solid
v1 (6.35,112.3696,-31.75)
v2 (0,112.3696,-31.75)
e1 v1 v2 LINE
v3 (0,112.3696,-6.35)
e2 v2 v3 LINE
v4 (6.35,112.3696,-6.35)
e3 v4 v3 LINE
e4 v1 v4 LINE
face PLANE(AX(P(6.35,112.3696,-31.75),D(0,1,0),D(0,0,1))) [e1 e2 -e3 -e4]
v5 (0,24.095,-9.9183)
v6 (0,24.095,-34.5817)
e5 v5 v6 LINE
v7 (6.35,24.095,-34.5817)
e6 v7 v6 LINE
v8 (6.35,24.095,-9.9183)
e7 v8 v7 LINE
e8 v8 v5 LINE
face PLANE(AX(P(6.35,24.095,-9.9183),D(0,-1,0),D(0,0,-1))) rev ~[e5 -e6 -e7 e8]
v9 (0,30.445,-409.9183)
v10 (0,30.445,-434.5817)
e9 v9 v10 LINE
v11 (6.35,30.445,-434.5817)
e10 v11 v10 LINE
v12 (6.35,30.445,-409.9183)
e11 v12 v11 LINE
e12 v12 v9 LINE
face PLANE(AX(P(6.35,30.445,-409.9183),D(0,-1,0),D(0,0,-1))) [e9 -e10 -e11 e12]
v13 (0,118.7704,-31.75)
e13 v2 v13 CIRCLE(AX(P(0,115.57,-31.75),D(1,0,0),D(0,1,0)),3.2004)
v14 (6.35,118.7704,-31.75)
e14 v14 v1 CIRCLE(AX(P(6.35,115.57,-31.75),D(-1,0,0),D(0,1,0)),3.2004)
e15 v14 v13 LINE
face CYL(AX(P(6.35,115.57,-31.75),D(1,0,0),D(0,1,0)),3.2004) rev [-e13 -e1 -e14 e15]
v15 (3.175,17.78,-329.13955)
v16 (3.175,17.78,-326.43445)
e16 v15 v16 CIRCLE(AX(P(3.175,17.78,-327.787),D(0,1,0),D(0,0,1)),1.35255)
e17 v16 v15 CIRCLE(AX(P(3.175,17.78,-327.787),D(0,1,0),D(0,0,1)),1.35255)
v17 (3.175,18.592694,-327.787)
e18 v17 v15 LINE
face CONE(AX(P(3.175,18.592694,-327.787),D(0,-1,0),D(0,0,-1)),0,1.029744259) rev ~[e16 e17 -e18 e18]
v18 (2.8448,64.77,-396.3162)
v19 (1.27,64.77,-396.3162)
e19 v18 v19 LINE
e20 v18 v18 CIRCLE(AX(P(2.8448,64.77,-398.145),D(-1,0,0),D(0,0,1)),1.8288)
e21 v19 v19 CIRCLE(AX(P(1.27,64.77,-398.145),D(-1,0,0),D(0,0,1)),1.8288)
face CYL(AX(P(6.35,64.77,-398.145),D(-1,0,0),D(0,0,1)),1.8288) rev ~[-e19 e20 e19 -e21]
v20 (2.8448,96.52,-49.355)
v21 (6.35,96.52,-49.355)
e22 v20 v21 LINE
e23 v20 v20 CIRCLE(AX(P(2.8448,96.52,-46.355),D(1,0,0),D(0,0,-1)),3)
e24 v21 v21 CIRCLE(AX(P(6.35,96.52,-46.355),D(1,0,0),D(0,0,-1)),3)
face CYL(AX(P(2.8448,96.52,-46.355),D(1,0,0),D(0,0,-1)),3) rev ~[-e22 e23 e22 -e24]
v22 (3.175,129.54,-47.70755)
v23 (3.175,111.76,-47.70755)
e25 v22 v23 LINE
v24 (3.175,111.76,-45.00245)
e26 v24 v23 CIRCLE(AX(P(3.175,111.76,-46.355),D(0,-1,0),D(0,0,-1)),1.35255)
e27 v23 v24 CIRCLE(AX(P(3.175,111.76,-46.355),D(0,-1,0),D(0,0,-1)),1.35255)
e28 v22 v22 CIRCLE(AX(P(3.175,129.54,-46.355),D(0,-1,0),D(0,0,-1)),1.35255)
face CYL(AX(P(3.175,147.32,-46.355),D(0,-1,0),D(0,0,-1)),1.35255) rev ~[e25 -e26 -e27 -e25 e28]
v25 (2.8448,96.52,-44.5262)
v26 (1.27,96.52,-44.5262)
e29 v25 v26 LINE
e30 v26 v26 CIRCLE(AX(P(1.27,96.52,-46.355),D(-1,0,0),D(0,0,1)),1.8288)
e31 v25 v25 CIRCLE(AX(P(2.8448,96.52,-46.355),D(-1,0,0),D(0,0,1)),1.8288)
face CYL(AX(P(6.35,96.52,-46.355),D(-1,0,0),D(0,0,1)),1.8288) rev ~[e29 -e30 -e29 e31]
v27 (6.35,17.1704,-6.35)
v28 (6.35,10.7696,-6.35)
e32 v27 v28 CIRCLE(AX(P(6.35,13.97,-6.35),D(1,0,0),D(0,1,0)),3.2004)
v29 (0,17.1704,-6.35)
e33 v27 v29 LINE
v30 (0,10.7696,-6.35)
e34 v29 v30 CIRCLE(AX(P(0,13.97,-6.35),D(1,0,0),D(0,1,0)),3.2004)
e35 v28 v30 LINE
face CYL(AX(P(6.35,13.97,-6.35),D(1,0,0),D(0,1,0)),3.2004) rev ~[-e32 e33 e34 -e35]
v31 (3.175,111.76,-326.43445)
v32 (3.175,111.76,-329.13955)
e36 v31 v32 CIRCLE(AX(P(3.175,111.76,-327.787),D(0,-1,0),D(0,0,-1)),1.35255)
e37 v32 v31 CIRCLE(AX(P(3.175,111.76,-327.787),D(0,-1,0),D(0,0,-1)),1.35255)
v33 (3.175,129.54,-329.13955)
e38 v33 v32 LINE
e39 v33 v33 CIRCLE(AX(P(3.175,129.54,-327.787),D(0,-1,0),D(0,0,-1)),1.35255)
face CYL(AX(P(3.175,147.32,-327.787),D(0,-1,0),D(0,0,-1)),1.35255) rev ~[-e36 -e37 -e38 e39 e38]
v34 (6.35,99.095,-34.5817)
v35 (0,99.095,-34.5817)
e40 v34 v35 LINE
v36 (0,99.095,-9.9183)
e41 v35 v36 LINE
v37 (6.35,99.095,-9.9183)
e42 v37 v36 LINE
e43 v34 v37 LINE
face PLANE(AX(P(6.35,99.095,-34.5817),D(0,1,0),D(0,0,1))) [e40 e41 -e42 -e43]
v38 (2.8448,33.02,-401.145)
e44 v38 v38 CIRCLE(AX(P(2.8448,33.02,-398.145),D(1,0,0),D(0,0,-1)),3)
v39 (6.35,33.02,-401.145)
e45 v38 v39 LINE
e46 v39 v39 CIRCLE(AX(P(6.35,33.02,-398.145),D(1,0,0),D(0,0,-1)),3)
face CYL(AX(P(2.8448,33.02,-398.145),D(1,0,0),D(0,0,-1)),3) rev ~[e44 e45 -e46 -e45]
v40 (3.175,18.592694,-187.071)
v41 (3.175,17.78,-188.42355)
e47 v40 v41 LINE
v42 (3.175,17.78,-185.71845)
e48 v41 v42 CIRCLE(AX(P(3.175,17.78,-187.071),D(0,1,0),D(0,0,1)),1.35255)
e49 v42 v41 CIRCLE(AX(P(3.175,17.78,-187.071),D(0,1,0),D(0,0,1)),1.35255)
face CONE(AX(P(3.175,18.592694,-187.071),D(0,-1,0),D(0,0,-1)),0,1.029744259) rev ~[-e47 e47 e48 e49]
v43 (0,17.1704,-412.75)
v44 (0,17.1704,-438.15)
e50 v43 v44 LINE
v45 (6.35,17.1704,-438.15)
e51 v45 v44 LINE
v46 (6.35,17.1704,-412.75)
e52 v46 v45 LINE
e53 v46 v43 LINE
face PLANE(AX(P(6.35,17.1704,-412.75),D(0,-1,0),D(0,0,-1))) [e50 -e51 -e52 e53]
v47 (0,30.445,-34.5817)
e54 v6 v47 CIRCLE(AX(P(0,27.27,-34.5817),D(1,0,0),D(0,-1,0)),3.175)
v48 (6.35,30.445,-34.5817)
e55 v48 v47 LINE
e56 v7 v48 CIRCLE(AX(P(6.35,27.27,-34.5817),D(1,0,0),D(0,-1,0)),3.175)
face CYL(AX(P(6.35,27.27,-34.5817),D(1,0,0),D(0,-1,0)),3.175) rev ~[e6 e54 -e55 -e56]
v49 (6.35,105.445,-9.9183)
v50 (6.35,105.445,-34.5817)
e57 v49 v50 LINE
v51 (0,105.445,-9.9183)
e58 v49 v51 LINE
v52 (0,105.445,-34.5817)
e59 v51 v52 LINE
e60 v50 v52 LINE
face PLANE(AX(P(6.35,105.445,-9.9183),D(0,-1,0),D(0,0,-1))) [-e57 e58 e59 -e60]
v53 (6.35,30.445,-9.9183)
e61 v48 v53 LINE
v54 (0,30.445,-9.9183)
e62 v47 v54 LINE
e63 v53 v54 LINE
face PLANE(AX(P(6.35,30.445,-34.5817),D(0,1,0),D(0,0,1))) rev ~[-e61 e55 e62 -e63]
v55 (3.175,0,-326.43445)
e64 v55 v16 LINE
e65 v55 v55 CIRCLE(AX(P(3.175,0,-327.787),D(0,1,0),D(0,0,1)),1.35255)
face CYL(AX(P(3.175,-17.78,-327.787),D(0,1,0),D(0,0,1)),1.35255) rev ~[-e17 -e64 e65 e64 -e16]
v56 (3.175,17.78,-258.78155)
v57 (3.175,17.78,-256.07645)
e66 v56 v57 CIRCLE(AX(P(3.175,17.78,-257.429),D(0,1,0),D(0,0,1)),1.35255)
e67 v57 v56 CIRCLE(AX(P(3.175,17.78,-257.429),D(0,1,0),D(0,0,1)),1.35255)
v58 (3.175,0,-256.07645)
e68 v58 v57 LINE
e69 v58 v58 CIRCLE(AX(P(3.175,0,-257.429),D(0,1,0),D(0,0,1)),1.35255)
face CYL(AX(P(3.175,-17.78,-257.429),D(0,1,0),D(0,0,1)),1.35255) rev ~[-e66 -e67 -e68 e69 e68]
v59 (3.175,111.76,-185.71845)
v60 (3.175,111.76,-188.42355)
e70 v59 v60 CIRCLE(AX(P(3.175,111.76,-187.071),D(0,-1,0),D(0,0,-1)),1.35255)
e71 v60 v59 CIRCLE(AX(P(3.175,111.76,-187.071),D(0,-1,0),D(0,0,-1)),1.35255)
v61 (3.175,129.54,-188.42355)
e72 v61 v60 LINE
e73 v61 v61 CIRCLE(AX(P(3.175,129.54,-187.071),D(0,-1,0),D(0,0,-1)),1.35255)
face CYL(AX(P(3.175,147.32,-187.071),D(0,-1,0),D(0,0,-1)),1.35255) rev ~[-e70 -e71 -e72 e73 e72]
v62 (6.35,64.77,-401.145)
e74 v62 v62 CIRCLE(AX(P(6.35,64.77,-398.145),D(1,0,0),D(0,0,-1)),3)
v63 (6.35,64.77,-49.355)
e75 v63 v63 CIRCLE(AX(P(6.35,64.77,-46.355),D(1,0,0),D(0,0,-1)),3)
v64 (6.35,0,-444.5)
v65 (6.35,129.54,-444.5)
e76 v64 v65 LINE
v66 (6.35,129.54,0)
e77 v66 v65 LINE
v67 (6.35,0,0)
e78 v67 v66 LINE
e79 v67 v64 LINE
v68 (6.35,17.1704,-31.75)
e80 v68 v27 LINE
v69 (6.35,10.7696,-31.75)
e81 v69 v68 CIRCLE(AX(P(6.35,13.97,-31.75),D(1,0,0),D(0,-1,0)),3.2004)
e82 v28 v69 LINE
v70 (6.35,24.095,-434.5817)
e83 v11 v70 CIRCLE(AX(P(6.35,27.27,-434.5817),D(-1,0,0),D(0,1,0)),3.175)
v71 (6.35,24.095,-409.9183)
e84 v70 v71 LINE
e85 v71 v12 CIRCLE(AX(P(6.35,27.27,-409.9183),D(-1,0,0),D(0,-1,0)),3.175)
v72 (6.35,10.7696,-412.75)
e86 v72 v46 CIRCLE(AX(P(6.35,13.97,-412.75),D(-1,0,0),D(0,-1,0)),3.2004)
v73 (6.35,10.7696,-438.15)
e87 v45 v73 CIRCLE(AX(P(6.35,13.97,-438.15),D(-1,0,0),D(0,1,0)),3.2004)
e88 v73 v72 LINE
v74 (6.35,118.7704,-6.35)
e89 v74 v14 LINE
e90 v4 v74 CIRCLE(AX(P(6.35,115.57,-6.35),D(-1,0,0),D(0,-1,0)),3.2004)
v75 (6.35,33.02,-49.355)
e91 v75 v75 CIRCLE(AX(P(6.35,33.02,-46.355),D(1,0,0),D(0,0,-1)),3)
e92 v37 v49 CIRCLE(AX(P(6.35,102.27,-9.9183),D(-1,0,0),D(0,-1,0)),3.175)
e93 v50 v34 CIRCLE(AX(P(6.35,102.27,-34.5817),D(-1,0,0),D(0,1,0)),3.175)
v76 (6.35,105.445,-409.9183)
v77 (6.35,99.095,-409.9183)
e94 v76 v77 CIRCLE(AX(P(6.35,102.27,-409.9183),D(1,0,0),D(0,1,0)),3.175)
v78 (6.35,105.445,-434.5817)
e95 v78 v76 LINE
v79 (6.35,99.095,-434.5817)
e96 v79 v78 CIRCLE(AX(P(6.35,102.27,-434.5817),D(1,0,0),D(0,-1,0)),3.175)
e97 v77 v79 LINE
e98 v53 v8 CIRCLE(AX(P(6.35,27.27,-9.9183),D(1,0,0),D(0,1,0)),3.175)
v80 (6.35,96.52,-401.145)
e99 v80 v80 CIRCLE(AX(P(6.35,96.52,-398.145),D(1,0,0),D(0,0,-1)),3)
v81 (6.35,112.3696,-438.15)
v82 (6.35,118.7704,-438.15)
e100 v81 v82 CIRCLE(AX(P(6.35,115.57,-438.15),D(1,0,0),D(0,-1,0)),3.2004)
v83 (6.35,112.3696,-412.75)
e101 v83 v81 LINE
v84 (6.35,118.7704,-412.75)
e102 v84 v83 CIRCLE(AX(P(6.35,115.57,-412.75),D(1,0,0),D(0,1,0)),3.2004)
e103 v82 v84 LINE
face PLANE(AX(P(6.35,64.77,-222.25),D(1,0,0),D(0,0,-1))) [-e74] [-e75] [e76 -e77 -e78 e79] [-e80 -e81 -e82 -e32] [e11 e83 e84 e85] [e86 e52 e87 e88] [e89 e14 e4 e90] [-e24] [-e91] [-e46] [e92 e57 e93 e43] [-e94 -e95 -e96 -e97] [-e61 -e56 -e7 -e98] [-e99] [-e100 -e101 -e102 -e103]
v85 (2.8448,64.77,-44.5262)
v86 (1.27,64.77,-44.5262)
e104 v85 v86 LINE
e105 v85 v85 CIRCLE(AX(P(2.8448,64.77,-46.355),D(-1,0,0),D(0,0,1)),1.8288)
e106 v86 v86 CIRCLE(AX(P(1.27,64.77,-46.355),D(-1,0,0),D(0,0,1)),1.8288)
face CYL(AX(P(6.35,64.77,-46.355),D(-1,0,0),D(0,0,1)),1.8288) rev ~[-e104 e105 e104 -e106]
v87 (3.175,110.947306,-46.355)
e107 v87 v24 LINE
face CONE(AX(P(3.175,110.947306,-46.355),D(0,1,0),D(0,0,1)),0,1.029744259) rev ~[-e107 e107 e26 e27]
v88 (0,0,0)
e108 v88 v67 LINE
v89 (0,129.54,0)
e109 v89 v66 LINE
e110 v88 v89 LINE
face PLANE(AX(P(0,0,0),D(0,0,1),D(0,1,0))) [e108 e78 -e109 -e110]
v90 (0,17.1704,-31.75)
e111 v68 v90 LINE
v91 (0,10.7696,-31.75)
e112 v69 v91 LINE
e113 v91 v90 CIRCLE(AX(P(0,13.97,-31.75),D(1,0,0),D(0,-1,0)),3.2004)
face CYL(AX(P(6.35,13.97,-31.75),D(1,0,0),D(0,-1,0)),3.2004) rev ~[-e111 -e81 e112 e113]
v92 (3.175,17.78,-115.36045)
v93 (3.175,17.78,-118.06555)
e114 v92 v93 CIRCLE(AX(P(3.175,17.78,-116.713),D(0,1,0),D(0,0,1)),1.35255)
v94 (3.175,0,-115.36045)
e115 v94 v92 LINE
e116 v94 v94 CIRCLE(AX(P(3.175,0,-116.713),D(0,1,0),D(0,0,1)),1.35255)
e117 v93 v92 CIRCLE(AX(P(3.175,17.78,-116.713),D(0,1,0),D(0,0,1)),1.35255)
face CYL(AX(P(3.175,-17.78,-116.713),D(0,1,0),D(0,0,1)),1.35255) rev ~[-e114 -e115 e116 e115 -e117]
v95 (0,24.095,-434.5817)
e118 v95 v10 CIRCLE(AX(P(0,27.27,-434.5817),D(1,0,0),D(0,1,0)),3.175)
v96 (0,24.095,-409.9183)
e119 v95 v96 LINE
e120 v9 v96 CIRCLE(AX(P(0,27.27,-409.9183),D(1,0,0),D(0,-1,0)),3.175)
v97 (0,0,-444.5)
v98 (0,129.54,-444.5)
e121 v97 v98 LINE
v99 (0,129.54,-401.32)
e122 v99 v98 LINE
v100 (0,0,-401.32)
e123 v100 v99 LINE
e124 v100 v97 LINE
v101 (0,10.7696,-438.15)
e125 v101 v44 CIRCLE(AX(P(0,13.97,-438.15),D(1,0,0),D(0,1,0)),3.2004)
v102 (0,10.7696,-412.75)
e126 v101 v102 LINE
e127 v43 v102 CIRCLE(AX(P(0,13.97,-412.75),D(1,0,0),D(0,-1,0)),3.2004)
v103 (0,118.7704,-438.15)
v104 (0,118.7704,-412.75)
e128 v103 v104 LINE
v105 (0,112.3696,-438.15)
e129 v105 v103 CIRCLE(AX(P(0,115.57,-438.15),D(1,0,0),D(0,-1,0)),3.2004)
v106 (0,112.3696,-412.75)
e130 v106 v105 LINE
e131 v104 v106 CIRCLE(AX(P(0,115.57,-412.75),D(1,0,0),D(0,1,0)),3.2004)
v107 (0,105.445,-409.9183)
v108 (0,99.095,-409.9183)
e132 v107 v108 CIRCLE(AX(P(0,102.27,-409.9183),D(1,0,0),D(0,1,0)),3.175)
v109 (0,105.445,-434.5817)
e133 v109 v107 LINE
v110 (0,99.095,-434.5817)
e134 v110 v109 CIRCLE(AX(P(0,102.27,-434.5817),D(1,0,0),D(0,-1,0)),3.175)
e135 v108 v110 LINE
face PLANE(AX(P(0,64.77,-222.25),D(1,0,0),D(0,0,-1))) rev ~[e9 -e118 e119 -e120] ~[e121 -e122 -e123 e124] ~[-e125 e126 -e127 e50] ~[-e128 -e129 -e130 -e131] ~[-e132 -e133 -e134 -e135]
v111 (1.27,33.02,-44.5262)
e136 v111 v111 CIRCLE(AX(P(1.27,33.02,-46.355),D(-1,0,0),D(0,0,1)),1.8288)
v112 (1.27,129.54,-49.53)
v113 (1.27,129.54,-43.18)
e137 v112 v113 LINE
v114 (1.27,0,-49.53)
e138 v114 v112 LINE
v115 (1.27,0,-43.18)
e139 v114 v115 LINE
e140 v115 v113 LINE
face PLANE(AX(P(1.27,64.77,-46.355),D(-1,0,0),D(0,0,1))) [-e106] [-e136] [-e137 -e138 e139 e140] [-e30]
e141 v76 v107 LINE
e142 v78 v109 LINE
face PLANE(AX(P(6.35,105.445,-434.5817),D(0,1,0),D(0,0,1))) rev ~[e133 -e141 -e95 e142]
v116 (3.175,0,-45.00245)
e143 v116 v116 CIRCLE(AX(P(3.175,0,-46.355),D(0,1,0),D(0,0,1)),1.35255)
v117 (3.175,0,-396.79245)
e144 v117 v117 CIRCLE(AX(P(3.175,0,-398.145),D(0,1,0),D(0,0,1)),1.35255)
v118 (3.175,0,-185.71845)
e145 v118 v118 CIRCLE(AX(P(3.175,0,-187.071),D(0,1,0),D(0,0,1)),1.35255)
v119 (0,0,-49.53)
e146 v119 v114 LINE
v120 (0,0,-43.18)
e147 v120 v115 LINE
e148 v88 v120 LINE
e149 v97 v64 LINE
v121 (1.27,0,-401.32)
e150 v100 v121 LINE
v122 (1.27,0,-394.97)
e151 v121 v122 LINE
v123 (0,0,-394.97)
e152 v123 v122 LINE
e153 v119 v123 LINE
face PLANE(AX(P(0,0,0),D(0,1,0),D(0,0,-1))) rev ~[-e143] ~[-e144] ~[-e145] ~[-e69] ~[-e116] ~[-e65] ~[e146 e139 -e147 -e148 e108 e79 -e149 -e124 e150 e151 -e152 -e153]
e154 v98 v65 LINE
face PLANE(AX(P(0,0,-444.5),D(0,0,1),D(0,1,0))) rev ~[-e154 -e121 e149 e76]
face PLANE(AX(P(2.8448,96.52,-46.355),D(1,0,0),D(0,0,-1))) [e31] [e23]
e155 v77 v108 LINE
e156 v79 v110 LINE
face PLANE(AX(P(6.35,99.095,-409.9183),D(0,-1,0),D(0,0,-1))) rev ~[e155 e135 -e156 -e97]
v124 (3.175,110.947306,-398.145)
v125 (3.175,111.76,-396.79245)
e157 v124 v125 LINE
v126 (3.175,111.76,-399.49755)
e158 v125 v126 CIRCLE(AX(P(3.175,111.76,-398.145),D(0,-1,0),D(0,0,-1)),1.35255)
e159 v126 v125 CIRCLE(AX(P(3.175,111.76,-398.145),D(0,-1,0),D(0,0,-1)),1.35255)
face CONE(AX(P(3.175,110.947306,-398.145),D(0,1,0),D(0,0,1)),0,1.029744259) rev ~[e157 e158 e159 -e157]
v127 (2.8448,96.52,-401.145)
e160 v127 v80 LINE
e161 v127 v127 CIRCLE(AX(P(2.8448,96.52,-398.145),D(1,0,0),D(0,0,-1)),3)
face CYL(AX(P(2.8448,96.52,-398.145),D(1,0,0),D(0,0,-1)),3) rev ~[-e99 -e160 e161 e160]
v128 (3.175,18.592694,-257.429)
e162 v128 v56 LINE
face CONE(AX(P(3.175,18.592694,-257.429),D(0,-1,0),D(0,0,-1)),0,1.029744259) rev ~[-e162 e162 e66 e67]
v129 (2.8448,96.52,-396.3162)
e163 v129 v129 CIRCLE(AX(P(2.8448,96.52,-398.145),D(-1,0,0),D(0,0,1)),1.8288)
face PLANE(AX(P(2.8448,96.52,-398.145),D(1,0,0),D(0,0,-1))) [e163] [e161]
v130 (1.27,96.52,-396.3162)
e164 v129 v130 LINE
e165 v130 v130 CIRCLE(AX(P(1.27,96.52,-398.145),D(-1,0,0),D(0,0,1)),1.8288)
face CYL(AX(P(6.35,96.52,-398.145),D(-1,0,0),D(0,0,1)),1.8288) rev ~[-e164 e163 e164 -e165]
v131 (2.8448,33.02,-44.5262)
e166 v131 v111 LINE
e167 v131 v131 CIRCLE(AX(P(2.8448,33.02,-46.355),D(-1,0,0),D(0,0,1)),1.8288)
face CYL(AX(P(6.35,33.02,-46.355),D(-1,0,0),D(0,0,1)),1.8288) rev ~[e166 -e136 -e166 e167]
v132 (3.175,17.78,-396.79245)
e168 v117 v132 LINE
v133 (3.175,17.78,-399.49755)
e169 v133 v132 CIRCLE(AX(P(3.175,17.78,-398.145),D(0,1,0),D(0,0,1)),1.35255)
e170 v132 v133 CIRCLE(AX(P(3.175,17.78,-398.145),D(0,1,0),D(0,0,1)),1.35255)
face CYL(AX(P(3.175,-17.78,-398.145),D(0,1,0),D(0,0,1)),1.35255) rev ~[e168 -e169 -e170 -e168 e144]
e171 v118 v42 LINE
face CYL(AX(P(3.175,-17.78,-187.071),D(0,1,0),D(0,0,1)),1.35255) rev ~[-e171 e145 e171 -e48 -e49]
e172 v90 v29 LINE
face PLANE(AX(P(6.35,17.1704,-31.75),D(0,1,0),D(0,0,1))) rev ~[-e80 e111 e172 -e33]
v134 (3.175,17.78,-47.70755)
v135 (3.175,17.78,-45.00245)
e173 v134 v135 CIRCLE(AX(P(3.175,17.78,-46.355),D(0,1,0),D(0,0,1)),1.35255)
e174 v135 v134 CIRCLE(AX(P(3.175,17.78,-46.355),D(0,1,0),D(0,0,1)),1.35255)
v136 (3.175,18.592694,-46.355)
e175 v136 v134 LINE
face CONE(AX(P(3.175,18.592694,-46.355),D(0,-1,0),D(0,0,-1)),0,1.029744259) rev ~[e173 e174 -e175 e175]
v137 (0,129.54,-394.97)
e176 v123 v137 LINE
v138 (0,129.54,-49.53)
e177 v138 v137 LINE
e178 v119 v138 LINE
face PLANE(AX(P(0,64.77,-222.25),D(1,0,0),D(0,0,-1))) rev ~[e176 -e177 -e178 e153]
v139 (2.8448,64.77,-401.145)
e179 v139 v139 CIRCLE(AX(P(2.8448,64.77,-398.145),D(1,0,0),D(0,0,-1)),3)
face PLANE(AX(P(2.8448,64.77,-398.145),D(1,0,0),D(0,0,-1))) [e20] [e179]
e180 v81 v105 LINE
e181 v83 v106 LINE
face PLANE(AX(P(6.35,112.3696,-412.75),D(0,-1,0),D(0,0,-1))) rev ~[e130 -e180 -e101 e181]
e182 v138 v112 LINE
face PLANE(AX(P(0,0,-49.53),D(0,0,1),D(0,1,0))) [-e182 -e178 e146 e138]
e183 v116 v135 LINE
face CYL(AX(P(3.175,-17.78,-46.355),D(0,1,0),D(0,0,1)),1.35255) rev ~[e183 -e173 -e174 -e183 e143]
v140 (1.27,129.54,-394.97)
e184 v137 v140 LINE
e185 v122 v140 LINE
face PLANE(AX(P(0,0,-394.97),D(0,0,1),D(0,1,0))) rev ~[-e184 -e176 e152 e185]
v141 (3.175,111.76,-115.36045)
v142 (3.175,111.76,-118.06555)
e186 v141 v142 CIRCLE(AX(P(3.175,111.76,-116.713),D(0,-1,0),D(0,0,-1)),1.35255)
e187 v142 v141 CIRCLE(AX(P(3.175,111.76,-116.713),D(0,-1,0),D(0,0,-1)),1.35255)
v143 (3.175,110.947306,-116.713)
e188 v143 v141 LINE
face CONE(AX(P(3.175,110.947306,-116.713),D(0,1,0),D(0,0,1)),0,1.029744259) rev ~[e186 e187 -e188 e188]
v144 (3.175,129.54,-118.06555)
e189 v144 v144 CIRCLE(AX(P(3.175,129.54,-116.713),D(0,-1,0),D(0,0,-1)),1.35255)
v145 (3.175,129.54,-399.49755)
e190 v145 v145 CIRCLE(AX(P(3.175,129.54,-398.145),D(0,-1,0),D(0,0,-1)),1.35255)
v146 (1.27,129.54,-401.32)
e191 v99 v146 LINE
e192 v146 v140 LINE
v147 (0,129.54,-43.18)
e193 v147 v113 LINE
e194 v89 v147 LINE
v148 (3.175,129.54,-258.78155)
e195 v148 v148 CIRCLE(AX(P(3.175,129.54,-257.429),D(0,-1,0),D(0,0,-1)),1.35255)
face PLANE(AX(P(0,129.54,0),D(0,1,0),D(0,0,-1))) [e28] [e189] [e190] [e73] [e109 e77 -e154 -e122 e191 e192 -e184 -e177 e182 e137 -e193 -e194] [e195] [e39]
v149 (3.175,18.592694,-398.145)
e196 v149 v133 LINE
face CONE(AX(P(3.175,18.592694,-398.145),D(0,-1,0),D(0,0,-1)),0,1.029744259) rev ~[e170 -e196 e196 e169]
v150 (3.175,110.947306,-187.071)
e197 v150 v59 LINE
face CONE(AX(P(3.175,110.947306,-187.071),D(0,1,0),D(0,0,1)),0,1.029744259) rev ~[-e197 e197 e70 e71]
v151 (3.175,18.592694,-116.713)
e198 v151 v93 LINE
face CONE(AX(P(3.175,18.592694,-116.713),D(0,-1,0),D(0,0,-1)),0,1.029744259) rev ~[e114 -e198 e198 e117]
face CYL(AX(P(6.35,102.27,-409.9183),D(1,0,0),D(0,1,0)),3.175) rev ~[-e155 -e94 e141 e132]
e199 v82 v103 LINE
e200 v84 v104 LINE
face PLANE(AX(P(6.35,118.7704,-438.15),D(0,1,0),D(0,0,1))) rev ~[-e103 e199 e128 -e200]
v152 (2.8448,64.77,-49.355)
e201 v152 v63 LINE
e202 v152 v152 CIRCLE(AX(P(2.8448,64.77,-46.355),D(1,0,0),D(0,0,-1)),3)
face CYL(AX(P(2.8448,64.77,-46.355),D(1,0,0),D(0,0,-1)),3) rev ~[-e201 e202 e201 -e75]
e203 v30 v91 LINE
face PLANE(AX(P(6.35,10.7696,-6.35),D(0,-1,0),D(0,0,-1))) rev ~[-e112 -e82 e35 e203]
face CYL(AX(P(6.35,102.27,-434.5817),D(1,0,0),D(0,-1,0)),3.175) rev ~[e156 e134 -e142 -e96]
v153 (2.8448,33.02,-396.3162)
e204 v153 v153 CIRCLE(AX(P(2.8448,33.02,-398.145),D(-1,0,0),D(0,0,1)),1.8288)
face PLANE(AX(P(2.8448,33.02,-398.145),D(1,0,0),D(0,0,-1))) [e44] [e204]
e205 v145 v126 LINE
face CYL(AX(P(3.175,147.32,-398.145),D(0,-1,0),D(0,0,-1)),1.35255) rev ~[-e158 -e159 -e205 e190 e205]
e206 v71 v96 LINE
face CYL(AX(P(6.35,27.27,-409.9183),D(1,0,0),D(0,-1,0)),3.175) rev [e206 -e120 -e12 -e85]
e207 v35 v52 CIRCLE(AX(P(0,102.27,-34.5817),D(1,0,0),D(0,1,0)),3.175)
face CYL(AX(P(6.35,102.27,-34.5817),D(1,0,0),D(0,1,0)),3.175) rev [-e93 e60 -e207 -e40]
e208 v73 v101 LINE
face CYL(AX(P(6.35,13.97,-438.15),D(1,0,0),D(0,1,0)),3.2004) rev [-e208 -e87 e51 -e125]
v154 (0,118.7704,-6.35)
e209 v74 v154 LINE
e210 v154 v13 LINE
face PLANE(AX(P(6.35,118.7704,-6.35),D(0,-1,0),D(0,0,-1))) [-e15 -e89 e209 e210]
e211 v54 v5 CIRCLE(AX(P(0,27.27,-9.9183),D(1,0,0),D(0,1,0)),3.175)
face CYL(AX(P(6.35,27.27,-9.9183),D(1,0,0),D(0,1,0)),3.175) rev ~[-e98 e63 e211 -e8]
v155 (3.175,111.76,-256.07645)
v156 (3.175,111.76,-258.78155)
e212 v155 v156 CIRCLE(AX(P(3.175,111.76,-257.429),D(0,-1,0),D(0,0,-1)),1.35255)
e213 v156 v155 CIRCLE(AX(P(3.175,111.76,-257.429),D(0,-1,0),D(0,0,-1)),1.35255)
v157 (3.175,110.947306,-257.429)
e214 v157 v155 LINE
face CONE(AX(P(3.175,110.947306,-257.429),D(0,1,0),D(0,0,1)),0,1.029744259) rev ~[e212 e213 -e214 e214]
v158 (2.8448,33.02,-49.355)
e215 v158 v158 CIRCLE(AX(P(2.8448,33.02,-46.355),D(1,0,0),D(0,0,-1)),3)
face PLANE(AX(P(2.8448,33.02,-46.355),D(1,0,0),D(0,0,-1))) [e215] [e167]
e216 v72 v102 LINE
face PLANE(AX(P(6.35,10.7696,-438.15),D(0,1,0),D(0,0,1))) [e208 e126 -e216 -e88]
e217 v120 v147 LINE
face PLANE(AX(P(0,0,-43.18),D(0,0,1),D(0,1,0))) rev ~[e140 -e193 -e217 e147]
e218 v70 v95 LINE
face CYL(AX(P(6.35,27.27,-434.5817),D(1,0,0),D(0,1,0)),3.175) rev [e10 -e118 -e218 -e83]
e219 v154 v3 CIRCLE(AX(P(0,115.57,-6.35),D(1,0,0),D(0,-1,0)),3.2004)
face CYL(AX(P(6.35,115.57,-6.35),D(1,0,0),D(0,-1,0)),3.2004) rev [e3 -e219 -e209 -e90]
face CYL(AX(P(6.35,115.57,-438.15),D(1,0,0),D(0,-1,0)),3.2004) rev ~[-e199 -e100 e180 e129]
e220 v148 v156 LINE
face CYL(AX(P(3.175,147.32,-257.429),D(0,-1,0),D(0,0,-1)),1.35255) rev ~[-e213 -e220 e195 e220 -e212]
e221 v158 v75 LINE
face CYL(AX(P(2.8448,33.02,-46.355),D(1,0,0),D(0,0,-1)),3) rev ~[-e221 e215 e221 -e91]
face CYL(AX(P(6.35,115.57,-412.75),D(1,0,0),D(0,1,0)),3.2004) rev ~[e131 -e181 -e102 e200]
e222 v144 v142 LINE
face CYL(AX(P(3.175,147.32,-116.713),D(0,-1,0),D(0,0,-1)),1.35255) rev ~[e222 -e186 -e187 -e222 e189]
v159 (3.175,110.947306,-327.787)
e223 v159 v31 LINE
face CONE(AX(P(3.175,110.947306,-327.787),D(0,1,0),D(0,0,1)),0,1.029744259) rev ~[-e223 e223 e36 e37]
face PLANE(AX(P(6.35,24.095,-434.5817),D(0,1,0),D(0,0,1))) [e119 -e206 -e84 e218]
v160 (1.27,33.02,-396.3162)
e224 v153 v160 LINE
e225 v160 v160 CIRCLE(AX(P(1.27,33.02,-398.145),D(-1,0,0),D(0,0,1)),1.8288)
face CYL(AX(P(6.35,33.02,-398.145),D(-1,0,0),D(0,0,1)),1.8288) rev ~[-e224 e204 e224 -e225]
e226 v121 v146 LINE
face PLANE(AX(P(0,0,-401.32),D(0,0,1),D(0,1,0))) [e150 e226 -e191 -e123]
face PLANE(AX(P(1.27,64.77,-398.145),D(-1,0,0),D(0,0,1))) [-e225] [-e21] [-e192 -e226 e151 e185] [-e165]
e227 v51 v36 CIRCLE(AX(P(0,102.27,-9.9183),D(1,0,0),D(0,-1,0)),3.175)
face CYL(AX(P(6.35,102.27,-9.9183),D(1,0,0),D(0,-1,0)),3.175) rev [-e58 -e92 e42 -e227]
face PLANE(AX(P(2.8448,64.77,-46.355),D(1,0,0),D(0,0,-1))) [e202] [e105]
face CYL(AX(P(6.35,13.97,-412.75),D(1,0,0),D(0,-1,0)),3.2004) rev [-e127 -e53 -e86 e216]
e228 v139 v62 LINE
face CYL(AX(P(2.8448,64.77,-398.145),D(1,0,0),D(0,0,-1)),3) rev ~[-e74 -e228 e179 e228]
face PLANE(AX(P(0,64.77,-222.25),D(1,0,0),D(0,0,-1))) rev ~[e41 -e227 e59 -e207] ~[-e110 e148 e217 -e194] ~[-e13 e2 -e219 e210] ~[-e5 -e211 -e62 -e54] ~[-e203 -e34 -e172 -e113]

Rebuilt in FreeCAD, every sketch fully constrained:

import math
import FreeCAD as App
import Part
import Sketcher
Q = App.Units.Quantity


def add_polygon(sketch, points):
    """Adds a closed chain of lines whose ends are joined by coincident constraints."""
    first, n = sketch.GeometryCount, len(points)
    for a, b in zip(points, points[1:] + points[:1]):
        sketch.addGeometry(Part.LineSegment(App.Vector(*a, 0), App.Vector(*b, 0)), False)
    for i in range(n):
        sketch.addConstraint(Sketcher.Constraint("Coincident", first + i, 2, first + (i + 1) % n, 1))

doc = App.newDocument("Part")
body = doc.addObject("PartDesign::Body", "Body")

# Sketch on YZ plane
sketch1 = doc.addObject("Sketcher::SketchObject", "Sketch")
body.addObject(sketch1)
sketch1.AttachmentSupport = (doc.YZ_Plane, [""])
sketch1.MapMode = "FlatFace"
add_polygon(sketch1, [(130, 0), (0, 0), (0, -444), (130, -444)])  # lines 0-3
sketch1.addConstraint([
    Sketcher.Constraint("Horizontal", 0),
    Sketcher.Constraint("Vertical", 1),
    Sketcher.Constraint("Horizontal", 2),
    Sketcher.Constraint("Vertical", 3),
    Sketcher.Constraint("Coincident", 0, 2, -1, 1),
    Sketcher.Constraint("DistanceX", 0, 2, 0, 1, Q("5.1 in")),
    Sketcher.Constraint("DistanceY", 1, 2, 1, 1, Q("17.5 in")),
])
pad1 = doc.addObject("PartDesign::Pad", "Pad")
body.addObject(pad1)
pad1.Profile = sketch1
pad1.Length = Q("0.25 in")

# Sketch on YZ plane
sketch2 = doc.addObject("Sketcher::SketchObject", "Sketch001")
body.addObject(sketch2)
sketch2.AttachmentSupport = (doc.YZ_Plane, [""])
sketch2.MapMode = "FlatFace"
sketch2.AttachmentOffset = App.Placement(App.Vector(0, 0, 0.25 * 25.4), App.Rotation())
sketch2.addGeometry([
    Part.Circle(App.Vector(64.8, -46.4, 0), App.Vector(0, 0, 1), 1.8),  # 0
    Part.Circle(App.Vector(64.8, -398.1, 0), App.Vector(0, 0, 1), 1.8),  # 1
    Part.Circle(App.Vector(96.5, -46.4, 0), App.Vector(0, 0, 1), 1.8),  # 2
    Part.Circle(App.Vector(33, -46.4, 0), App.Vector(0, 0, 1), 1.8),  # 3
    Part.Circle(App.Vector(96.5, -398.1, 0), App.Vector(0, 0, 1), 1.8),  # 4
    Part.Circle(App.Vector(33, -398.1, 0), App.Vector(0, 0, 1), 1.8),  # 5
], False)
sketch2.addConstraint([
    Sketcher.Constraint("Equal", 0, 1),
    Sketcher.Constraint("Equal", 1, 2),
    Sketcher.Constraint("Equal", 2, 3),
    Sketcher.Constraint("Equal", 3, 4),
    Sketcher.Constraint("Equal", 4, 5),
    Sketcher.Constraint("Horizontal", 0, 3, 2, 3),
    Sketcher.Constraint("Horizontal", 2, 3, 3, 3),
    Sketcher.Constraint("Horizontal", 1, 3, 4, 3),
    Sketcher.Constraint("Horizontal", 4, 3, 5, 3),
    Sketcher.Constraint("Vertical", 0, 3, 1, 3),
    Sketcher.Constraint("Vertical", 2, 3, 4, 3),
    Sketcher.Constraint("Vertical", 3, 3, 5, 3),
    Sketcher.Constraint("Diameter", 0, Q("0.144 in")),
    Sketcher.Constraint("DistanceX", -1, 1, 2, 3, Q("3.8 in")),
    Sketcher.Constraint("DistanceX", -1, 1, 3, 3, Q("1.3 in")),
    Sketcher.Constraint("DistanceX", -1, 1, 0, 3, Q("2.55 in")),
    Sketcher.Constraint("DistanceY", 1, 3, 0, 3, Q("13.85 in")),
    Sketcher.Constraint("DistanceY", 0, 3, -1, 1, Q("1.825 in")),
])
doc.recompute()
hole = doc.addObject("PartDesign::Hole", "Hole")
body.addObject(hole)
hole.Profile = sketch2
hole.ThreadType = "None"
hole.Diameter = Q("0.144 in")
hole.DepthType = "ThroughAll"
hole.HoleCutType = "Counterbore"
hole.HoleCutDiameter = 6
hole.HoleCutDepth = Q("0.138 in")

# Sketch on YZ plane
sketch3 = doc.addObject("Sketcher::SketchObject", "Sketch002")
body.addObject(sketch3)
sketch3.AttachmentSupport = (doc.YZ_Plane, [""])
sketch3.MapMode = "FlatFace"
sketch3.AttachmentOffset = App.Placement(App.Vector(0, 0, 0.25 * 25.4), App.Rotation())
sketch3.addGeometry([
    Part.LineSegment(App.Vector(118.8, -31.8, 0), App.Vector(118.8, -6.3, 0)),  # 0
    Part.ArcOfCircle(Part.Circle(App.Vector(115.6, -6.3, 0), App.Vector(0, 0, 1), 3.2), math.radians(0), math.radians(180)),  # 1
    Part.LineSegment(App.Vector(112.4, -6.3, 0), App.Vector(112.4, -31.8, 0)),  # 2
    Part.ArcOfCircle(Part.Circle(App.Vector(115.6, -31.8, 0), App.Vector(0, 0, 1), 3.2), math.radians(180), math.radians(360)),  # 3
    Part.LineSegment(App.Vector(24.1, -409.9, 0), App.Vector(24.1, -434.6, 0)),  # 4
    Part.ArcOfCircle(Part.Circle(App.Vector(27.3, -434.6, 0), App.Vector(0, 0, 1), 3.2), math.radians(180), math.radians(360)),  # 5
    Part.LineSegment(App.Vector(30.4, -434.6, 0), App.Vector(30.4, -409.9, 0)),  # 6
    Part.ArcOfCircle(Part.Circle(App.Vector(27.3, -409.9, 0), App.Vector(0, 0, 1), 3.2), math.radians(0), math.radians(180)),  # 7
    Part.LineSegment(App.Vector(105.4, -434.6, 0), App.Vector(105.4, -409.9, 0)),  # 8
    Part.ArcOfCircle(Part.Circle(App.Vector(102.3, -409.9, 0), App.Vector(0, 0, 1), 3.2), math.radians(0), math.radians(180)),  # 9
    Part.LineSegment(App.Vector(99.1, -409.9, 0), App.Vector(99.1, -434.6, 0)),  # 10
    Part.ArcOfCircle(Part.Circle(App.Vector(102.3, -434.6, 0), App.Vector(0, 0, 1), 3.2), math.radians(180), math.radians(360)),  # 11
    Part.LineSegment(App.Vector(10.8, -6.3, 0), App.Vector(10.8, -31.8, 0)),  # 12
    Part.ArcOfCircle(Part.Circle(App.Vector(14, -31.8, 0), App.Vector(0, 0, 1), 3.2), math.radians(180), math.radians(360)),  # 13
    Part.LineSegment(App.Vector(17.2, -31.8, 0), App.Vector(17.2, -6.3, 0)),  # 14
    Part.ArcOfCircle(Part.Circle(App.Vector(14, -6.3, 0), App.Vector(0, 0, 1), 3.2), math.radians(0), math.radians(180)),  # 15
    Part.LineSegment(App.Vector(118.8, -438.1, 0), App.Vector(118.8, -412.8, 0)),  # 16
    Part.ArcOfCircle(Part.Circle(App.Vector(115.6, -412.8, 0), App.Vector(0, 0, 1), 3.2), math.radians(0), math.radians(180)),  # 17
    Part.LineSegment(App.Vector(112.4, -412.8, 0), App.Vector(112.4, -438.1, 0)),  # 18
    Part.ArcOfCircle(Part.Circle(App.Vector(115.6, -438.1, 0), App.Vector(0, 0, 1), 3.2), math.radians(180), math.radians(360)),  # 19
    Part.LineSegment(App.Vector(105.4, -34.6, 0), App.Vector(105.4, -9.9, 0)),  # 20
    Part.ArcOfCircle(Part.Circle(App.Vector(102.3, -9.9, 0), App.Vector(0, 0, 1), 3.2), math.radians(0), math.radians(180)),  # 21
    Part.LineSegment(App.Vector(99.1, -9.9, 0), App.Vector(99.1, -34.6, 0)),  # 22
    Part.ArcOfCircle(Part.Circle(App.Vector(102.3, -34.6, 0), App.Vector(0, 0, 1), 3.2), math.radians(180), math.radians(360)),  # 23
    Part.LineSegment(App.Vector(24.1, -9.9, 0), App.Vector(24.1, -34.6, 0)),  # 24
    Part.ArcOfCircle(Part.Circle(App.Vector(27.3, -34.6, 0), App.Vector(0, 0, 1), 3.2), math.radians(180), math.radians(360)),  # 25
    Part.LineSegment(App.Vector(30.4, -34.6, 0), App.Vector(30.4, -9.9, 0)),  # 26
    Part.ArcOfCircle(Part.Circle(App.Vector(27.3, -9.9, 0), App.Vector(0, 0, 1), 3.2), math.radians(0), math.radians(180)),  # 27
    Part.LineSegment(App.Vector(10.8, -412.8, 0), App.Vector(10.8, -438.1, 0)),  # 28
    Part.ArcOfCircle(Part.Circle(App.Vector(14, -438.1, 0), App.Vector(0, 0, 1), 3.2), math.radians(180), math.radians(360)),  # 29
    Part.LineSegment(App.Vector(17.2, -438.1, 0), App.Vector(17.2, -412.8, 0)),  # 30
    Part.ArcOfCircle(Part.Circle(App.Vector(14, -412.8, 0), App.Vector(0, 0, 1), 3.2), math.radians(0), math.radians(180)),  # 31
], False)
sketch3.addConstraint([
    Sketcher.Constraint("Tangent", 0, 2, 1, 1),
    Sketcher.Constraint("Tangent", 1, 2, 2, 1),
    Sketcher.Constraint("Tangent", 2, 2, 3, 1),
    Sketcher.Constraint("Tangent", 3, 2, 0, 1),
    Sketcher.Constraint("Tangent", 4, 2, 5, 1),
    Sketcher.Constraint("Tangent", 5, 2, 6, 1),
    Sketcher.Constraint("Tangent", 6, 2, 7, 1),
    Sketcher.Constraint("Tangent", 7, 2, 4, 1),
    Sketcher.Constraint("Tangent", 8, 2, 9, 1),
    Sketcher.Constraint("Tangent", 9, 2, 10, 1),
    Sketcher.Constraint("Tangent", 10, 2, 11, 1),
    Sketcher.Constraint("Tangent", 11, 2, 8, 1),
    Sketcher.Constraint("Tangent", 12, 2, 13, 1),
    Sketcher.Constraint("Tangent", 13, 2, 14, 1),
    Sketcher.Constraint("Tangent", 14, 2, 15, 1),
    Sketcher.Constraint("Tangent", 15, 2, 12, 1),
    Sketcher.Constraint("Tangent", 16, 2, 17, 1),
    Sketcher.Constraint("Tangent", 17, 2, 18, 1),
    Sketcher.Constraint("Tangent", 18, 2, 19, 1),
    Sketcher.Constraint("Tangent", 19, 2, 16, 1),
    Sketcher.Constraint("Tangent", 20, 2, 21, 1),
    Sketcher.Constraint("Tangent", 21, 2, 22, 1),
    Sketcher.Constraint("Tangent", 22, 2, 23, 1),
    Sketcher.Constraint("Tangent", 23, 2, 20, 1),
    Sketcher.Constraint("Tangent", 24, 2, 25, 1),
    Sketcher.Constraint("Tangent", 25, 2, 26, 1),
    Sketcher.Constraint("Tangent", 26, 2, 27, 1),
    Sketcher.Constraint("Tangent", 27, 2, 24, 1),
    Sketcher.Constraint("Tangent", 28, 2, 29, 1),
    Sketcher.Constraint("Tangent", 29, 2, 30, 1),
    Sketcher.Constraint("Tangent", 30, 2, 31, 1),
    Sketcher.Constraint("Tangent", 31, 2, 28, 1),
    Sketcher.Constraint("Vertical", 0),
    Sketcher.Constraint("Vertical", 2),
    Sketcher.Constraint("Vertical", 4),
    Sketcher.Constraint("Vertical", 6),
    Sketcher.Constraint("Vertical", 8),
    Sketcher.Constraint("Vertical", 10),
    Sketcher.Constraint("Vertical", 12),
    Sketcher.Constraint("Vertical", 14),
    Sketcher.Constraint("Vertical", 16),
    Sketcher.Constraint("Vertical", 18),
    Sketcher.Constraint("Vertical", 20),
    Sketcher.Constraint("Vertical", 22),
    Sketcher.Constraint("Vertical", 24),
    Sketcher.Constraint("Vertical", 26),
    Sketcher.Constraint("Vertical", 28),
    Sketcher.Constraint("Vertical", 30),
    Sketcher.Constraint("Equal", 7, 9),
    Sketcher.Constraint("Equal", 3, 13),
    Sketcher.Constraint("Equal", 15, 17),
    Sketcher.Constraint("Equal", 11, 21),
    Sketcher.Constraint("Equal", 23, 25),
    Sketcher.Constraint("Equal", 19, 29),
    Sketcher.Constraint("Horizontal", 7, 3, 9, 3),
    Sketcher.Constraint("Horizontal", 5, 3, 11, 3),
    Sketcher.Constraint("Horizontal", 3, 3, 13, 3),
    Sketcher.Constraint("Horizontal", 1, 3, 15, 3),
    Sketcher.Constraint("Horizontal", 23, 3, 25, 3),
    Sketcher.Constraint("Horizontal", 21, 3, 27, 3),
    Sketcher.Constraint("Horizontal", 19, 3, 29, 3),
    Sketcher.Constraint("Horizontal", 17, 3, 31, 3),
    Sketcher.Constraint("Vertical", 3, 3, 17, 3),
    Sketcher.Constraint("Vertical", 11, 3, 21, 3),
    Sketcher.Constraint("Vertical", 7, 3, 25, 3),
    Sketcher.Constraint("Vertical", 15, 3, 29, 3),
    Sketcher.Constraint("Equal", 14, 16),
    Sketcher.Constraint("Equal", 10, 20),
    Sketcher.Constraint("DistanceY", 0, 1, 0, 2, Q("1 in")),
    Sketcher.Constraint("Radius", 1, Q("0.126 in")),
    Sketcher.Constraint("Radius", 5, Q("0.125 in")),
    Sketcher.Constraint("DistanceX", 13, 3, 3, 3, Q("4 in")),
    Sketcher.Constraint("DistanceY", 17, 3, 3, 3, Q("15 in")),
    Sketcher.Constraint("DistanceY", 4, 2, 4, 1, Q("0.971 in")),
    Sketcher.Constraint("DistanceX", -1, 1, 1, 3, Q("4.55 in")),
    Sketcher.Constraint("DistanceY", 1, 3, -1, 1, Q("0.25 in")),
    Sketcher.Constraint("DistanceX", -1, 1, 5, 3, 27.27),
    Sketcher.Constraint("DistanceY", 5, 3, -1, 1, 434.5817),
    Sketcher.Constraint("DistanceX", -1, 1, 9, 3, 102.27),
    Sketcher.Constraint("DistanceY", 21, 3, -1, 1, 9.9183),
])
pocket1 = doc.addObject("PartDesign::Pocket", "Pocket")
body.addObject(pocket1)
pocket1.Profile = sketch3
pocket1.Type = "ThroughAll"

# Sketch on XZ plane
sketch4 = doc.addObject("Sketcher::SketchObject", "Sketch003")
body.addObject(sketch4)
sketch4.AttachmentSupport = (doc.XZ_Plane, [""])
sketch4.MapMode = "FlatFace"
sketch4.AttachmentOffset = App.Placement(App.Vector(0, 0, -5.1 * 25.4), App.Rotation())
sketch4.addGeometry([
    Part.Circle(App.Vector(3.2, -398.1, 0), App.Vector(0, 0, 1), 1.4),  # 0
    Part.Circle(App.Vector(3.2, -327.8, 0), App.Vector(0, 0, 1), 1.4),  # 1
    Part.Circle(App.Vector(3.2, -257.4, 0), App.Vector(0, 0, 1), 1.4),  # 2
    Part.Circle(App.Vector(3.2, -187.1, 0), App.Vector(0, 0, 1), 1.4),  # 3
    Part.Circle(App.Vector(3.2, -116.7, 0), App.Vector(0, 0, 1), 1.4),  # 4
    Part.Circle(App.Vector(3.2, -46.4, 0), App.Vector(0, 0, 1), 1.4),  # 5
    Part.Circle(App.Vector(-67.2, -46.4, 0), App.Vector(0, 0, 1), 1.4),  # 6
    Part.Circle(App.Vector(-137.5, -46.4, 0), App.Vector(0, 0, 1), 1.4),  # 7
    Part.Circle(App.Vector(-207.9, -46.4, 0), App.Vector(0, 0, 1), 1.4),  # 8
    Part.Circle(App.Vector(-278.3, -46.4, 0), App.Vector(0, 0, 1), 1.4),  # 9
    Part.Circle(App.Vector(-348.6, -46.4, 0), App.Vector(0, 0, 1), 1.4),  # 10
    Part.Circle(App.Vector(-348.6, -116.7, 0), App.Vector(0, 0, 1), 1.4),  # 11
    Part.Circle(App.Vector(-348.6, -187.1, 0), App.Vector(0, 0, 1), 1.4),  # 12
    Part.Circle(App.Vector(-348.6, -257.4, 0), App.Vector(0, 0, 1), 1.4),  # 13
    Part.Circle(App.Vector(-348.6, -327.8, 0), App.Vector(0, 0, 1), 1.4),  # 14
    Part.Circle(App.Vector(-348.6, -398.1, 0), App.Vector(0, 0, 1), 1.4),  # 15
    Part.Circle(App.Vector(-278.3, -398.1, 0), App.Vector(0, 0, 1), 1.4),  # 16
    Part.Circle(App.Vector(-207.9, -398.1, 0), App.Vector(0, 0, 1), 1.4),  # 17
    Part.Circle(App.Vector(-137.5, -398.1, 0), App.Vector(0, 0, 1), 1.4),  # 18
    Part.Circle(App.Vector(-67.2, -398.1, 0), App.Vector(0, 0, 1), 1.4),  # 19
], False)
sketch4.addConstraint([
    Sketcher.Constraint("Equal", 0, 1),
    Sketcher.Constraint("Equal", 1, 2),
    Sketcher.Constraint("Equal", 2, 3),
    Sketcher.Constraint("Equal", 3, 4),
    Sketcher.Constraint("Equal", 4, 5),
    Sketcher.Constraint("Equal", 5, 6),
    Sketcher.Constraint("Equal", 6, 7),
    Sketcher.Constraint("Equal", 7, 8),
    Sketcher.Constraint("Equal", 8, 9),
    Sketcher.Constraint("Equal", 9, 10),
    Sketcher.Constraint("Equal", 10, 11),
    Sketcher.Constraint("Equal", 11, 12),
    Sketcher.Constraint("Equal", 12, 13),
    Sketcher.Constraint("Equal", 13, 14),
    Sketcher.Constraint("Equal", 14, 15),
    Sketcher.Constraint("Equal", 15, 16),
    Sketcher.Constraint("Equal", 16, 17),
    Sketcher.Constraint("Equal", 17, 18),
    Sketcher.Constraint("Equal", 18, 19),
    Sketcher.Constraint("Horizontal", 5, 3, 6, 3),
    Sketcher.Constraint("Horizontal", 6, 3, 7, 3),
    Sketcher.Constraint("Horizontal", 7, 3, 8, 3),
    Sketcher.Constraint("Horizontal", 8, 3, 9, 3),
    Sketcher.Constraint("Horizontal", 9, 3, 10, 3),
    Sketcher.Constraint("Horizontal", 4, 3, 11, 3),
    Sketcher.Constraint("Horizontal", 3, 3, 12, 3),
    Sketcher.Constraint("Horizontal", 2, 3, 13, 3),
    Sketcher.Constraint("Horizontal", 1, 3, 14, 3),
    Sketcher.Constraint("Horizontal", 0, 3, 15, 3),
    Sketcher.Constraint("Horizontal", 15, 3, 16, 3),
    Sketcher.Constraint("Horizontal", 16, 3, 17, 3),
    Sketcher.Constraint("Horizontal", 17, 3, 18, 3),
    Sketcher.Constraint("Horizontal", 18, 3, 19, 3),
    Sketcher.Constraint("Vertical", 0, 3, 1, 3),
    Sketcher.Constraint("Vertical", 1, 3, 2, 3),
    Sketcher.Constraint("Vertical", 2, 3, 3, 3),
    Sketcher.Constraint("Vertical", 3, 3, 4, 3),
    Sketcher.Constraint("Vertical", 4, 3, 5, 3),
    Sketcher.Constraint("Vertical", 10, 3, 11, 3),
    Sketcher.Constraint("Vertical", 11, 3, 12, 3),
    Sketcher.Constraint("Vertical", 12, 3, 13, 3),
    Sketcher.Constraint("Vertical", 13, 3, 14, 3),
    Sketcher.Constraint("Vertical", 14, 3, 15, 3),
    Sketcher.Constraint("Vertical", 9, 3, 16, 3),
    Sketcher.Constraint("Vertical", 8, 3, 17, 3),
    Sketcher.Constraint("Vertical", 7, 3, 18, 3),
    Sketcher.Constraint("Vertical", 6, 3, 19, 3),
    Sketcher.Constraint("Diameter", 0, Q("0.1065 in")),
    Sketcher.Constraint("DistanceY", 0, 3, 1, 3, Q("2.77 in")),
    Sketcher.Constraint("DistanceY", 1, 3, 2, 3, Q("2.77 in")),
    Sketcher.Constraint("DistanceY", 2, 3, 3, 3, Q("2.77 in")),
    Sketcher.Constraint("DistanceY", 3, 3, 4, 3, Q("2.77 in")),
    Sketcher.Constraint("DistanceY", 4, 3, 5, 3, Q("2.77 in")),
    Sketcher.Constraint("DistanceX", 6, 3, 5, 3, Q("2.77 in")),
    Sketcher.Constraint("DistanceX", 7, 3, 6, 3, Q("2.77 in")),
    Sketcher.Constraint("DistanceX", 8, 3, 7, 3, Q("2.77 in")),
    Sketcher.Constraint("DistanceX", 9, 3, 8, 3, Q("2.77 in")),
    Sketcher.Constraint("DistanceX", 10, 3, 9, 3, Q("2.77 in")),
    Sketcher.Constraint("DistanceX", -1, 1, 0, 3, Q("0.125 in")),
    Sketcher.Constraint("DistanceY", 0, 3, -1, 1, Q("15.675 in")),
])
doc.recompute()
hole2 = doc.addObject("PartDesign::Hole", "Hole001")
body.addObject(hole2)
hole2.Profile = sketch4
hole2.ThreadType = "None"
hole2.Diameter = Q("0.1065 in")
hole2.DepthType = "Dimension"
hole2.Depth = Q("0.7 in")
hole2.DrillPoint = "Angled"
hole2.DrillPointAngle = 118
hole2.Reversed = True

# Sketch on XZ plane
sketch5 = doc.addObject("Sketcher::SketchObject", "Sketch004")
body.addObject(sketch5)
sketch5.AttachmentSupport = (doc.XZ_Plane, [""])
sketch5.MapMode = "FlatFace"
sketch5.addGeometry([
    Part.Circle(App.Vector(-348.6, -398.1, 0), App.Vector(0, 0, 1), 1.4),  # 0
    Part.Circle(App.Vector(-348.6, -327.8, 0), App.Vector(0, 0, 1), 1.4),  # 1
    Part.Circle(App.Vector(-348.6, -257.4, 0), App.Vector(0, 0, 1), 1.4),  # 2
    Part.Circle(App.Vector(-348.6, -187.1, 0), App.Vector(0, 0, 1), 1.4),  # 3
    Part.Circle(App.Vector(-348.6, -116.7, 0), App.Vector(0, 0, 1), 1.4),  # 4
    Part.Circle(App.Vector(-348.6, -46.4, 0), App.Vector(0, 0, 1), 1.4),  # 5
    Part.Circle(App.Vector(-278.3, -46.4, 0), App.Vector(0, 0, 1), 1.4),  # 6
    Part.Circle(App.Vector(-207.9, -46.4, 0), App.Vector(0, 0, 1), 1.4),  # 7
    Part.Circle(App.Vector(-137.5, -46.4, 0), App.Vector(0, 0, 1), 1.4),  # 8
    Part.Circle(App.Vector(-67.2, -46.4, 0), App.Vector(0, 0, 1), 1.4),  # 9
    Part.Circle(App.Vector(3.2, -46.4, 0), App.Vector(0, 0, 1), 1.4),  # 10
    Part.Circle(App.Vector(3.2, -116.7, 0), App.Vector(0, 0, 1), 1.4),  # 11
    Part.Circle(App.Vector(3.2, -187.1, 0), App.Vector(0, 0, 1), 1.4),  # 12
    Part.Circle(App.Vector(3.2, -257.4, 0), App.Vector(0, 0, 1), 1.4),  # 13
    Part.Circle(App.Vector(3.2, -327.8, 0), App.Vector(0, 0, 1), 1.4),  # 14
    Part.Circle(App.Vector(3.2, -398.1, 0), App.Vector(0, 0, 1), 1.4),  # 15
    Part.Circle(App.Vector(-67.3, -398.1, 0), App.Vector(0, 0, 1), 1.4),  # 16
    Part.Circle(App.Vector(-137.6, -398.1, 0), App.Vector(0, 0, 1), 1.4),  # 17
    Part.Circle(App.Vector(-208, -398.1, 0), App.Vector(0, 0, 1), 1.4),  # 18
    Part.Circle(App.Vector(-278.3, -398.1, 0), App.Vector(0, 0, 1), 1.4),  # 19
], False)
sketch5.addConstraint([
    Sketcher.Constraint("Equal", 0, 1),
    Sketcher.Constraint("Equal", 1, 2),
    Sketcher.Constraint("Equal", 2, 3),
    Sketcher.Constraint("Equal", 3, 4),
    Sketcher.Constraint("Equal", 4, 5),
    Sketcher.Constraint("Equal", 5, 6),
    Sketcher.Constraint("Equal", 6, 7),
    Sketcher.Constraint("Equal", 7, 8),
    Sketcher.Constraint("Equal", 8, 9),
    Sketcher.Constraint("Equal", 9, 10),
    Sketcher.Constraint("Equal", 10, 11),
    Sketcher.Constraint("Equal", 11, 12),
    Sketcher.Constraint("Equal", 12, 13),
    Sketcher.Constraint("Equal", 13, 14),
    Sketcher.Constraint("Equal", 14, 15),
    Sketcher.Constraint("Equal", 15, 16),
    Sketcher.Constraint("Equal", 16, 17),
    Sketcher.Constraint("Equal", 17, 18),
    Sketcher.Constraint("Equal", 18, 19),
    Sketcher.Constraint("Horizontal", 5, 3, 6, 3),
    Sketcher.Constraint("Horizontal", 6, 3, 7, 3),
    Sketcher.Constraint("Horizontal", 7, 3, 8, 3),
    Sketcher.Constraint("Horizontal", 8, 3, 9, 3),
    Sketcher.Constraint("Horizontal", 9, 3, 10, 3),
    Sketcher.Constraint("Horizontal", 4, 3, 11, 3),
    Sketcher.Constraint("Horizontal", 3, 3, 12, 3),
    Sketcher.Constraint("Horizontal", 2, 3, 13, 3),
    Sketcher.Constraint("Horizontal", 1, 3, 14, 3),
    Sketcher.Constraint("Horizontal", 0, 3, 15, 3),
    Sketcher.Constraint("Horizontal", 15, 3, 16, 3),
    Sketcher.Constraint("Horizontal", 16, 3, 17, 3),
    Sketcher.Constraint("Horizontal", 17, 3, 18, 3),
    Sketcher.Constraint("Horizontal", 18, 3, 19, 3),
    Sketcher.Constraint("Vertical", 0, 3, 1, 3),
    Sketcher.Constraint("Vertical", 1, 3, 2, 3),
    Sketcher.Constraint("Vertical", 2, 3, 3, 3),
    Sketcher.Constraint("Vertical", 3, 3, 4, 3),
    Sketcher.Constraint("Vertical", 4, 3, 5, 3),
    Sketcher.Constraint("Vertical", 10, 3, 11, 3),
    Sketcher.Constraint("Vertical", 11, 3, 12, 3),
    Sketcher.Constraint("Vertical", 12, 3, 13, 3),
    Sketcher.Constraint("Vertical", 13, 3, 14, 3),
    Sketcher.Constraint("Vertical", 14, 3, 15, 3),
    Sketcher.Constraint("Diameter", 0, Q("0.1065 in")),
    Sketcher.Constraint("DistanceY", 0, 3, 1, 3, Q("2.77 in")),
    Sketcher.Constraint("DistanceY", 1, 3, 2, 3, Q("2.77 in")),
    Sketcher.Constraint("DistanceY", 2, 3, 3, 3, Q("2.77 in")),
    Sketcher.Constraint("DistanceY", 3, 3, 4, 3, Q("2.77 in")),
    Sketcher.Constraint("DistanceY", 4, 3, 5, 3, Q("2.77 in")),
    Sketcher.Constraint("DistanceX", 5, 3, 6, 3, Q("2.77 in")),
    Sketcher.Constraint("DistanceX", 6, 3, 7, 3, Q("2.77 in")),
    Sketcher.Constraint("DistanceX", 7, 3, 8, 3, Q("2.77 in")),
    Sketcher.Constraint("DistanceX", 8, 3, 9, 3, Q("2.77 in")),
    Sketcher.Constraint("DistanceX", 9, 3, 10, 3, Q("2.77 in")),
    Sketcher.Constraint("DistanceX", 17, 3, 16, 3, Q("2.77 in")),
    Sketcher.Constraint("DistanceX", 18, 3, 17, 3, Q("2.77 in")),
    Sketcher.Constraint("DistanceX", 19, 3, 18, 3, Q("2.77 in")),
    Sketcher.Constraint("DistanceX", 0, 3, -1, 1, Q("13.725 in")),
    Sketcher.Constraint("DistanceY", 0, 3, -1, 1, Q("15.675 in")),
    Sketcher.Constraint("DistanceX", 16, 3, -1, 1, Q("2.648 in")),
])
doc.recompute()
hole3 = doc.addObject("PartDesign::Hole", "Hole002")
body.addObject(hole3)
hole3.Profile = sketch5
hole3.ThreadType = "None"
hole3.Diameter = Q("0.1065 in")
hole3.DepthType = "Dimension"
hole3.Depth = Q("0.7 in")
hole3.DrillPoint = "Angled"
hole3.DrillPointAngle = 118

# Sketch on YZ plane
sketch6 = doc.addObject("Sketcher::SketchObject", "Sketch005")
body.addObject(sketch6)
sketch6.AttachmentSupport = (doc.YZ_Plane, [""])
sketch6.MapMode = "FlatFace"
add_polygon(sketch6, [(130, -401), (0, -401), (0, -395), (130, -395)])  # lines 0-3
add_polygon(sketch6, [(130, -50), (0, -50), (0, -43), (130, -43)])  # lines 4-7
sketch6.addConstraint([
    Sketcher.Constraint("Horizontal", 0),
    Sketcher.Constraint("Vertical", 1),
    Sketcher.Constraint("Horizontal", 2),
    Sketcher.Constraint("Vertical", 3),
    Sketcher.Constraint("Horizontal", 4),
    Sketcher.Constraint("Vertical", 5),
    Sketcher.Constraint("Horizontal", 6),
    Sketcher.Constraint("Vertical", 7),
    Sketcher.Constraint("PointOnObject", 0, 2, -2),
    Sketcher.Constraint("PointOnObject", 4, 2, -2),
    Sketcher.Constraint("Vertical", 3, 2, 6, 2),
    Sketcher.Constraint("Equal", 3, 5),
    Sketcher.Constraint("DistanceX", 0, 2, 0, 1, Q("5.1 in")),
    Sketcher.Constraint("DistanceY", 1, 1, 1, 2, Q("0.25 in")),
    Sketcher.Constraint("DistanceY", 0, 2, -1, 1, Q("15.8 in")),
    Sketcher.Constraint("DistanceY", 5, 2, -1, 1, Q("1.7 in")),
])
pocket2 = doc.addObject("PartDesign::Pocket", "Pocket001")
body.addObject(pocket2)
pocket2.Profile = sketch6
pocket2.Length = Q("0.05 in")
pocket2.Reversed = True

doc.recompute()
